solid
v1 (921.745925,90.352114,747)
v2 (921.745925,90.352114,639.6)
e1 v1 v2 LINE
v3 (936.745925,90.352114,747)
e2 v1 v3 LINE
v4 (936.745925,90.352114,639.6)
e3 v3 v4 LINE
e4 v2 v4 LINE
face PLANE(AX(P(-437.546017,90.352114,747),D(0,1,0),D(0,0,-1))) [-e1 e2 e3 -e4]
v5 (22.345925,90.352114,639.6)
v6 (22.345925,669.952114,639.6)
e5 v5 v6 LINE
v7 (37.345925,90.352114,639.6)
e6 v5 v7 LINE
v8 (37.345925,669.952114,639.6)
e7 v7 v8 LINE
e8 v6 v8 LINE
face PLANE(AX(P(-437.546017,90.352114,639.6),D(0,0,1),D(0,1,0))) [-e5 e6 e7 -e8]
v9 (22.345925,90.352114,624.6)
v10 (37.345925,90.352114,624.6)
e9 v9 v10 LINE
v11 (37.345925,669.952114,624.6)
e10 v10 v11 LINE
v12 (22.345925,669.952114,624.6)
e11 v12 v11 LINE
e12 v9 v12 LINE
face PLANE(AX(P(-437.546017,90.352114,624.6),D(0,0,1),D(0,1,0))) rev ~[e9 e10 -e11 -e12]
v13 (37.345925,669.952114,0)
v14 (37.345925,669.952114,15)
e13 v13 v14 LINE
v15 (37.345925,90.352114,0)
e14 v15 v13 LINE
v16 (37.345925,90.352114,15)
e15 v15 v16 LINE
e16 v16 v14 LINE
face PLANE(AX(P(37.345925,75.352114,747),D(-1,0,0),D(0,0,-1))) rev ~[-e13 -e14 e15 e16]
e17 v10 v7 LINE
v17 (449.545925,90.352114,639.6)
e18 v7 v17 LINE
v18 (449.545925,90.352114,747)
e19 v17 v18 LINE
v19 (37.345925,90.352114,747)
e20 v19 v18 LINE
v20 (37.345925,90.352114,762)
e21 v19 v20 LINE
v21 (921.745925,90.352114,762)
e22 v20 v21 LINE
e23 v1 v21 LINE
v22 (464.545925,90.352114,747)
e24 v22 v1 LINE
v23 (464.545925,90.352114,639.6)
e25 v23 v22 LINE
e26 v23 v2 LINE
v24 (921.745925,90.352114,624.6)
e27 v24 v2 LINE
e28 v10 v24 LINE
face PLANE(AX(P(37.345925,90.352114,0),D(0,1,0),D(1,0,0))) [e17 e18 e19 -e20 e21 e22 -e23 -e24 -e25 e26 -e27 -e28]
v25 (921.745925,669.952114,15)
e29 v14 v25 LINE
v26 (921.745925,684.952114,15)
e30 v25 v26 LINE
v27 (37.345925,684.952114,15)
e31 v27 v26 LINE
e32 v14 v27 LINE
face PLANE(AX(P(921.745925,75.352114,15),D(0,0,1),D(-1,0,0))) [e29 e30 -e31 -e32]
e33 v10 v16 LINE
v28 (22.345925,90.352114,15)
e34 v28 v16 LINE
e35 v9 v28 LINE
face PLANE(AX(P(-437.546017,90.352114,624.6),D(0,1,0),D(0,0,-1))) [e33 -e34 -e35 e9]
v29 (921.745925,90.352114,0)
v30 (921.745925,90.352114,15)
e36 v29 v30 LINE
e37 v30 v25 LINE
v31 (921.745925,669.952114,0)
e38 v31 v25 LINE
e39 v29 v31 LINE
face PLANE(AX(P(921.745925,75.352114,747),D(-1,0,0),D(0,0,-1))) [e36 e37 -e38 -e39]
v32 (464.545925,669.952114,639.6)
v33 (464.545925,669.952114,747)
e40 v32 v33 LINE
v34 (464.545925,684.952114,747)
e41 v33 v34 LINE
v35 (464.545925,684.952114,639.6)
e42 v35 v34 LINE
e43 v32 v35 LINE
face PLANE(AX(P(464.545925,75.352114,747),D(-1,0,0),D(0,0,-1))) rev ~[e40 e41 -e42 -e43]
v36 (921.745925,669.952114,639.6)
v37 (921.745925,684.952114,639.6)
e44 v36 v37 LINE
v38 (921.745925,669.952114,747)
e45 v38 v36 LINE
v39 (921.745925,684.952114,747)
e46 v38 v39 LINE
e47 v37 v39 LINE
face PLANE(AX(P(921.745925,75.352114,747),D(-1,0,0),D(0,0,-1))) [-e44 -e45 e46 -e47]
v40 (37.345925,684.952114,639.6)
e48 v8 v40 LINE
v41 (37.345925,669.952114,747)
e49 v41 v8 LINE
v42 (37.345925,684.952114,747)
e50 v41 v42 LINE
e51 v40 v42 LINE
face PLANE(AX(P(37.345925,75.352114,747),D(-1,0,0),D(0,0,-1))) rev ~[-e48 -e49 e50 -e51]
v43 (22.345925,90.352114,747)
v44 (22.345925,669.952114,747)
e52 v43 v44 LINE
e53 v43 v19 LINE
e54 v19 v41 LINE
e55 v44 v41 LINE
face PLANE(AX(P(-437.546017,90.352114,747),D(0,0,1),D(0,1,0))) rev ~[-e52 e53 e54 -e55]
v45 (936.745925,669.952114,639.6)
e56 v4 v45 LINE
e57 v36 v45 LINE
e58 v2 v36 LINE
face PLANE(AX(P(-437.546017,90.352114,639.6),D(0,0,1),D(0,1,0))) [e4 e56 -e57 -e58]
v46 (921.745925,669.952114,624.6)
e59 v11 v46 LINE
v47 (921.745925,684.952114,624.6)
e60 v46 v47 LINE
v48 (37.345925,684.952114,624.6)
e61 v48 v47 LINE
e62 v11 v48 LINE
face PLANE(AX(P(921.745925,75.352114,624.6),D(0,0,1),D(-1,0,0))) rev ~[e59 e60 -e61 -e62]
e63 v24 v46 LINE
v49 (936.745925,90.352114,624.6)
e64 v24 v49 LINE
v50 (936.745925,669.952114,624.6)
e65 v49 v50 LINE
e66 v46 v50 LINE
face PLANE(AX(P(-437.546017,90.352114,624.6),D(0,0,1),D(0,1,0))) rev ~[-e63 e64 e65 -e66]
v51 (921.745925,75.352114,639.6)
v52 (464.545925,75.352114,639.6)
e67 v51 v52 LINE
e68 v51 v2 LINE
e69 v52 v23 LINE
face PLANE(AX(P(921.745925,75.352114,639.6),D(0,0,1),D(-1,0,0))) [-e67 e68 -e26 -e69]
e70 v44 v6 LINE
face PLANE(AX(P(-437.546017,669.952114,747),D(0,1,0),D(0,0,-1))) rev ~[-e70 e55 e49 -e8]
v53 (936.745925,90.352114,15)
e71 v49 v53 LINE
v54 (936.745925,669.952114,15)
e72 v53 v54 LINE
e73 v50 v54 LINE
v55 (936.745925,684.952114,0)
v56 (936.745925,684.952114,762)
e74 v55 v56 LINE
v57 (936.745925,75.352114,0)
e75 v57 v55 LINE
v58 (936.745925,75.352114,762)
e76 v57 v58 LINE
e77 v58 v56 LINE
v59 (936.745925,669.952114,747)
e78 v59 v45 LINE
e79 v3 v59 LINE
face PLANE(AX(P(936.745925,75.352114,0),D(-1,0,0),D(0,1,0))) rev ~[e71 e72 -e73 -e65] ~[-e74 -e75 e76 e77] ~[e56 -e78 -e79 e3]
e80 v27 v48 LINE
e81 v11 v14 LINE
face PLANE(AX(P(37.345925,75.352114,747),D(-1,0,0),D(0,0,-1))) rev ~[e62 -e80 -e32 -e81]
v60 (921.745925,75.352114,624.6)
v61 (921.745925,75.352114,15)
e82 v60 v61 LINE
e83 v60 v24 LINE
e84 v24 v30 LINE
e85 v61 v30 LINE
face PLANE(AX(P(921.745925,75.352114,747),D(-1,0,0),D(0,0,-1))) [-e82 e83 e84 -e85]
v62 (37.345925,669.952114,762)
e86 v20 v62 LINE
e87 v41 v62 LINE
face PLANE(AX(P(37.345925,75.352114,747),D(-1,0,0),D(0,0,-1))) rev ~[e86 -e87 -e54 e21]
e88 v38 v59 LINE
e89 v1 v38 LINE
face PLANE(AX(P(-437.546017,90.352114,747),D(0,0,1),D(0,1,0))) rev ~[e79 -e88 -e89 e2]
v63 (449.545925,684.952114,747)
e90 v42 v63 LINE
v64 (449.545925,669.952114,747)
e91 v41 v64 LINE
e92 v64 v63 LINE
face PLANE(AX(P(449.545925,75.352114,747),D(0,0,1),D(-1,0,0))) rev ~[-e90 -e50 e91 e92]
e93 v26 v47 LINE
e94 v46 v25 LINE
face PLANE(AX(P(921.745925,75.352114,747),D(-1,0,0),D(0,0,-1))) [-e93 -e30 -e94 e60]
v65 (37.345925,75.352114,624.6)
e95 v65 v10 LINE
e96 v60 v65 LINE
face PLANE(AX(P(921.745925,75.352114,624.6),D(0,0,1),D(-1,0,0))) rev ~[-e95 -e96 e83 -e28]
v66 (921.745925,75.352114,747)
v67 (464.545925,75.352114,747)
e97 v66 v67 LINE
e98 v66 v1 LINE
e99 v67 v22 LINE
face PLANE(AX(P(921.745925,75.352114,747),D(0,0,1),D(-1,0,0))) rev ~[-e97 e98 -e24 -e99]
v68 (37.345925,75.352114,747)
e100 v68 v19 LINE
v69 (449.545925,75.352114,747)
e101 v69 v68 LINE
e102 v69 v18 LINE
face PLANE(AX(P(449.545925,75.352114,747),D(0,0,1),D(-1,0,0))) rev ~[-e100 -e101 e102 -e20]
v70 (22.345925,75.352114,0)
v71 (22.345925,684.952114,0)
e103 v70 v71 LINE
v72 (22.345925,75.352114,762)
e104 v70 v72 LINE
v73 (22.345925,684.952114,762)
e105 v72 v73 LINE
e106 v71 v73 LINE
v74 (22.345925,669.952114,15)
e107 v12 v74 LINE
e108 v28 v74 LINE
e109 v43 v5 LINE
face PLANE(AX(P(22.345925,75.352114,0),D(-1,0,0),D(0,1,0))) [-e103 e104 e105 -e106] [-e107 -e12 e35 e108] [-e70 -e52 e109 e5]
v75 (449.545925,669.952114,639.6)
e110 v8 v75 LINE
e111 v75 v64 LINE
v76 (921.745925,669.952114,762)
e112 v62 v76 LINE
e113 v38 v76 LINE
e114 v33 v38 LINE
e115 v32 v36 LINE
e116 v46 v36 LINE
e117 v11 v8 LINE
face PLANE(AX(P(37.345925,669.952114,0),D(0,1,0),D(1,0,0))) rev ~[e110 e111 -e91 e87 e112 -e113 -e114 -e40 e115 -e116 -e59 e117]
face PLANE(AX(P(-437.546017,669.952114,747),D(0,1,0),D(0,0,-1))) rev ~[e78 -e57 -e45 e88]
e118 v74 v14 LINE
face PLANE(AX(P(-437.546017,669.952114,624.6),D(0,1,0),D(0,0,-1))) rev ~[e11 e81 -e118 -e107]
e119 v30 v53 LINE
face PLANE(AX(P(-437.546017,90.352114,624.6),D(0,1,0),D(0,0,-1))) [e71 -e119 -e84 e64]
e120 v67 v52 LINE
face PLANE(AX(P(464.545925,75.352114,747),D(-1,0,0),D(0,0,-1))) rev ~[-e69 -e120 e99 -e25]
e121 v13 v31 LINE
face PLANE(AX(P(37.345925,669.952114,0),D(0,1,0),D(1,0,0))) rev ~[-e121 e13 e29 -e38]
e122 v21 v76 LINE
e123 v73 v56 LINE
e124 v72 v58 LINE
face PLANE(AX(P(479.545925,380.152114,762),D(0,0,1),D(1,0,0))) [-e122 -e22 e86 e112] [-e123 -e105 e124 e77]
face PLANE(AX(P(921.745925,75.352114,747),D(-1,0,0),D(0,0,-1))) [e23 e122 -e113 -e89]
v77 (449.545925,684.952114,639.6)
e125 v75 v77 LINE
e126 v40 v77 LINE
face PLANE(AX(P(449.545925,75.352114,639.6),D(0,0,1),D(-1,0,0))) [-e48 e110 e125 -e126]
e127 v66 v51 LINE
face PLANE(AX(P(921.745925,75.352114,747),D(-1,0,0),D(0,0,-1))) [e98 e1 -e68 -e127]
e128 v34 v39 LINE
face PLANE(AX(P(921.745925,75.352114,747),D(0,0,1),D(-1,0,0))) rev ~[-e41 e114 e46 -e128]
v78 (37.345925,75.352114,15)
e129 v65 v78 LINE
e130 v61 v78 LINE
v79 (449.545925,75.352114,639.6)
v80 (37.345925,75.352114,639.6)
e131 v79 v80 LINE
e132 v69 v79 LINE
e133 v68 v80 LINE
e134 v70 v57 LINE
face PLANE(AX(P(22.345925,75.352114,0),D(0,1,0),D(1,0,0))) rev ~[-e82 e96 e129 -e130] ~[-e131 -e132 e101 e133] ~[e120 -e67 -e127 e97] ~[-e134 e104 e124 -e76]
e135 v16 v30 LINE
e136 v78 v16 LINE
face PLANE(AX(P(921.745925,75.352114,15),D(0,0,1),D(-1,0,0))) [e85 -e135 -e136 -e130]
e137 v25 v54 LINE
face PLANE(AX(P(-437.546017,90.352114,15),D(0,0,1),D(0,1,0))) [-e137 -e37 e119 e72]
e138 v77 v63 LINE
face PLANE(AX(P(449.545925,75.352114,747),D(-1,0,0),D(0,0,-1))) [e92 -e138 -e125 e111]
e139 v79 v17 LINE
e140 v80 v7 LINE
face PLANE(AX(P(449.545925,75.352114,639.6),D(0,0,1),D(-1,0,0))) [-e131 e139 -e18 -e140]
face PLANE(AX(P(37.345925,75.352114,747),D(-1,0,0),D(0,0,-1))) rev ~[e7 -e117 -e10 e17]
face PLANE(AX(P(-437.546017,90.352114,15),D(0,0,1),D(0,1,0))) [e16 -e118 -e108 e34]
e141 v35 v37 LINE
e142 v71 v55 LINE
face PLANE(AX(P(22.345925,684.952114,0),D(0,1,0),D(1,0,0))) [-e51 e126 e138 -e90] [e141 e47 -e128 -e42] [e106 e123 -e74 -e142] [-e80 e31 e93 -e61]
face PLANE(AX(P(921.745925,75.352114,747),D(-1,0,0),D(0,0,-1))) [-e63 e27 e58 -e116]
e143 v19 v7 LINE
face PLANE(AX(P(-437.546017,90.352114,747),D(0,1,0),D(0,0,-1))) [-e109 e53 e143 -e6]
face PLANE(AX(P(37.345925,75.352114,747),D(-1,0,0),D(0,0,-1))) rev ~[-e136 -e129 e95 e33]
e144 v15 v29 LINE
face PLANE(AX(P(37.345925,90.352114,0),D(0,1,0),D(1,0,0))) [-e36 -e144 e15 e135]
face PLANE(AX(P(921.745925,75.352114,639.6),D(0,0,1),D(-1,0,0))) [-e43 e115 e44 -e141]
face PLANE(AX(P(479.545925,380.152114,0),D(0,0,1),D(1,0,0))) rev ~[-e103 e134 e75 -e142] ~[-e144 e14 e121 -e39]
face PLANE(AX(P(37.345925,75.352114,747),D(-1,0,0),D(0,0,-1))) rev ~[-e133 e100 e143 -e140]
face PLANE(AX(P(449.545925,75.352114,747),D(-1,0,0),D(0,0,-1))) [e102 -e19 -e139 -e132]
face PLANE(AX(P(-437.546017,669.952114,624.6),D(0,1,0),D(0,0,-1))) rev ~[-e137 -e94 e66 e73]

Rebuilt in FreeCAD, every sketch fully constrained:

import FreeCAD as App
import Part
import Sketcher
from FreeCAD import Vector
Q = App.Units.Quantity

doc = App.newDocument("Part")
body = doc.addObject("PartDesign::Body", "Body")

sketch1 = doc.addObject("Sketcher::SketchObject", "Sketch")
body.addObject(sketch1)
sketch1.AttachmentSupport = (doc.XY_Plane, [""])
sketch1.MapMode = "FlatFace"
sketch1.addGeometry(Part.LineSegment(Vector(22, 685, 0), Vector(22, 75, 0)), False)
sketch1.addGeometry(Part.LineSegment(Vector(22, 75, 0), Vector(937, 75, 0)), False)
sketch1.addGeometry(Part.LineSegment(Vector(937, 75, 0), Vector(937, 685, 0)), False)
sketch1.addGeometry(Part.LineSegment(Vector(937, 685, 0), Vector(22, 685, 0)), False)
sketch1.addGeometry(Part.LineSegment(Vector(922, 90, 0), Vector(37, 90, 0)), False)
sketch1.addGeometry(Part.LineSegment(Vector(37, 90, 0), Vector(37, 670, 0)), False)
sketch1.addGeometry(Part.LineSegment(Vector(37, 670, 0), Vector(922, 670, 0)), False)
sketch1.addGeometry(Part.LineSegment(Vector(922, 670, 0), Vector(922, 90, 0)), False)
sketch1.addConstraint(Sketcher.Constraint("Coincident", 0, 2, 1, 1))
sketch1.addConstraint(Sketcher.Constraint("Coincident", 1, 2, 2, 1))
sketch1.addConstraint(Sketcher.Constraint("Coincident", 2, 2, 3, 1))
sketch1.addConstraint(Sketcher.Constraint("Coincident", 3, 2, 0, 1))
sketch1.addConstraint(Sketcher.Constraint("Coincident", 4, 2, 5, 1))
sketch1.addConstraint(Sketcher.Constraint("Coincident", 5, 2, 6, 1))
sketch1.addConstraint(Sketcher.Constraint("Coincident", 6, 2, 7, 1))
sketch1.addConstraint(Sketcher.Constraint("Coincident", 7, 2, 4, 1))
sketch1.addConstraint(Sketcher.Constraint("Vertical", 0))
sketch1.addConstraint(Sketcher.Constraint("Horizontal", 1))
sketch1.addConstraint(Sketcher.Constraint("Vertical", 2))
sketch1.addConstraint(Sketcher.Constraint("Horizontal", 3))
sketch1.addConstraint(Sketcher.Constraint("Horizontal", 4))
sketch1.addConstraint(Sketcher.Constraint("Vertical", 5))
sketch1.addConstraint(Sketcher.Constraint("Horizontal", 6))
sketch1.addConstraint(Sketcher.Constraint("Vertical", 7))
sketch1.addConstraint(Sketcher.Constraint("DistanceX", 1, 1, 1, 2, Q("914.4 mm")))
sketch1.addConstraint(Sketcher.Constraint("DistanceX", 4, 2, 4, 1, Q("884.4 mm")))
sketch1.addConstraint(Sketcher.Constraint("DistanceY", 0, 2, 0, 1, Q("609.6 mm")))
sketch1.addConstraint(Sketcher.Constraint("DistanceY", 5, 1, 5, 2, Q("579.6 mm")))
sketch1.addConstraint(Sketcher.Constraint("DistanceX", 0, 2, 4, 2, Q("15 mm")))
sketch1.addConstraint(Sketcher.Constraint("DistanceY", 0, 2, 4, 2, Q("15 mm")))
sketch1.addConstraint(Sketcher.Constraint("DistanceX", -1, 1, 0, 2, Q("22.345925 mm")))
sketch1.addConstraint(Sketcher.Constraint("DistanceY", -1, 1, 0, 2, Q("75.352114 mm")))
pad1 = doc.addObject("PartDesign::Pad", "Pad")
body.addObject(pad1)
pad1.Profile = sketch1
pad1.Length = 762

sketch2 = doc.addObject("Sketcher::SketchObject", "Sketch001")
body.addObject(sketch2)
sketch2.AttachmentSupport = (doc.XZ_Plane, [""])
sketch2.MapMode = "FlatFace"
sketch2.AttachmentOffset = App.Placement(Vector(0, 0, -75.352114), App.Rotation())
sketch2.addGeometry(Part.LineSegment(Vector(922, 15, 0), Vector(922, 625, 0)), False)
sketch2.addGeometry(Part.LineSegment(Vector(922, 625, 0), Vector(37, 625, 0)), False)
sketch2.addGeometry(Part.LineSegment(Vector(37, 625, 0), Vector(37, 15, 0)), False)
sketch2.addGeometry(Part.LineSegment(Vector(37, 15, 0), Vector(922, 15, 0)), False)
sketch2.addGeometry(Part.LineSegment(Vector(450, 640, 0), Vector(450, 747, 0)), False)
sketch2.addGeometry(Part.LineSegment(Vector(450, 747, 0), Vector(37, 747, 0)), False)
sketch2.addGeometry(Part.LineSegment(Vector(37, 747, 0), Vector(37, 640, 0)), False)
sketch2.addGeometry(Part.LineSegment(Vector(37, 640, 0), Vector(450, 640, 0)), False)
sketch2.addGeometry(Part.LineSegment(Vector(922, 640, 0), Vector(922, 747, 0)), False)
sketch2.addGeometry(Part.LineSegment(Vector(922, 747, 0), Vector(465, 747, 0)), False)
sketch2.addGeometry(Part.LineSegment(Vector(465, 747, 0), Vector(465, 640, 0)), False)
sketch2.addGeometry(Part.LineSegment(Vector(465, 640, 0), Vector(922, 640, 0)), False)
sketch2.addConstraint(Sketcher.Constraint("Coincident", 0, 2, 1, 1))
sketch2.addConstraint(Sketcher.Constraint("Coincident", 1, 2, 2, 1))
sketch2.addConstraint(Sketcher.Constraint("Coincident", 2, 2, 3, 1))
sketch2.addConstraint(Sketcher.Constraint("Coincident", 3, 2, 0, 1))
sketch2.addConstraint(Sketcher.Constraint("Coincident", 4, 2, 5, 1))
sketch2.addConstraint(Sketcher.Constraint("Coincident", 5, 2, 6, 1))
sketch2.addConstraint(Sketcher.Constraint("Coincident", 6, 2, 7, 1))
sketch2.addConstraint(Sketcher.Constraint("Coincident", 7, 2, 4, 1))
sketch2.addConstraint(Sketcher.Constraint("Coincident", 8, 2, 9, 1))
sketch2.addConstraint(Sketcher.Constraint("Coincident", 9, 2, 10, 1))
sketch2.addConstraint(Sketcher.Constraint("Coincident", 10, 2, 11, 1))
sketch2.addConstraint(Sketcher.Constraint("Coincident", 11, 2, 8, 1))
sketch2.addConstraint(Sketcher.Constraint("Vertical", 0))
sketch2.addConstraint(Sketcher.Constraint("Horizontal", 1))
sketch2.addConstraint(Sketcher.Constraint("Vertical", 2))
sketch2.addConstraint(Sketcher.Constraint("Horizontal", 3))
sketch2.addConstraint(Sketcher.Constraint("Vertical", 4))
sketch2.addConstraint(Sketcher.Constraint("Horizontal", 5))
sketch2.addConstraint(Sketcher.Constraint("Vertical", 6))
sketch2.addConstraint(Sketcher.Constraint("Horizontal", 7))
sketch2.addConstraint(Sketcher.Constraint("Vertical", 8))
sketch2.addConstraint(Sketcher.Constraint("Horizontal", 9))
sketch2.addConstraint(Sketcher.Constraint("Vertical", 10))
sketch2.addConstraint(Sketcher.Constraint("Horizontal", 11))
sketch2.addConstraint(Sketcher.Constraint("Horizontal", 5, 2, 8, 2))
sketch2.addConstraint(Sketcher.Constraint("Horizontal", 7, 2, 10, 2))
sketch2.addConstraint(Sketcher.Constraint("Vertical", 2, 2, 5, 2))
sketch2.addConstraint(Sketcher.Constraint("Vertical", 3, 2, 8, 2))
sketch2.addConstraint(Sketcher.Constraint("DistanceX", 1, 2, 1, 1, Q("884.4 mm")))
sketch2.addConstraint(Sketcher.Constraint("DistanceX", 5, 2, 5, 1, Q("412.2 mm")))
sketch2.addConstraint(Sketcher.Constraint("DistanceX", 9, 2, 9, 1, Q("457.2 mm")))
sketch2.addConstraint(Sketcher.Constraint("DistanceY", 0, 1, 0, 2, Q("609.6 mm")))
sketch2.addConstraint(Sketcher.Constraint("DistanceY", 4, 1, 4, 2, Q("107.4 mm")))
sketch2.addConstraint(Sketcher.Constraint("DistanceY", -1, 1, 2, 2, Q("15 mm")))
sketch2.addConstraint(Sketcher.Constraint("DistanceY", -1, 1, 4, 2, Q("747 mm")))
sketch2.addConstraint(Sketcher.Constraint("DistanceX", -1, 1, 0, 2, Q("921.745925 mm")))
pocket1 = doc.addObject("PartDesign::Pocket", "Pocket")
body.addObject(pocket1)
pocket1.Profile = sketch2
pocket1.Length = 762

sketch3 = doc.addObject("Sketcher::SketchObject", "Sketch002")
body.addObject(sketch3)
sketch3.AttachmentSupport = (doc.YZ_Plane, [""])
sketch3.MapMode = "FlatFace"
sketch3.AttachmentOffset = App.Placement(Vector(0, 0, 936.745925), App.Rotation())
sketch3.addGeometry(Part.LineSegment(Vector(670, 747, 0), Vector(90, 747, 0)), False)
sketch3.addGeometry(Part.LineSegment(Vector(90, 747, 0), Vector(90, 640, 0)), False)
sketch3.addGeometry(Part.LineSegment(Vector(90, 640, 0), Vector(670, 640, 0)), False)
sketch3.addGeometry(Part.LineSegment(Vector(670, 640, 0), Vector(670, 747, 0)), False)
sketch3.addGeometry(Part.LineSegment(Vector(670, 625, 0), Vector(90, 625, 0)), False)
sketch3.addGeometry(Part.LineSegment(Vector(90, 625, 0), Vector(90, 15, 0)), False)
sketch3.addGeometry(Part.LineSegment(Vector(90, 15, 0), Vector(670, 15, 0)), False)
sketch3.addGeometry(Part.LineSegment(Vector(670, 15, 0), Vector(670, 625, 0)), False)
sketch3.addConstraint(Sketcher.Constraint("Coincident", 0, 2, 1, 1))
sketch3.addConstraint(Sketcher.Constraint("Coincident", 1, 2, 2, 1))
sketch3.addConstraint(Sketcher.Constraint("Coincident", 2, 2, 3, 1))
sketch3.addConstraint(Sketcher.Constraint("Coincident", 3, 2, 0, 1))
sketch3.addConstraint(Sketcher.Constraint("Coincident", 4, 2, 5, 1))
sketch3.addConstraint(Sketcher.Constraint("Coincident", 5, 2, 6, 1))
sketch3.addConstraint(Sketcher.Constraint("Coincident", 6, 2, 7, 1))
sketch3.addConstraint(Sketcher.Constraint("Coincident", 7, 2, 4, 1))
sketch3.addConstraint(Sketcher.Constraint("Horizontal", 0))
sketch3.addConstraint(Sketcher.Constraint("Vertical", 1))
sketch3.addConstraint(Sketcher.Constraint("Horizontal", 2))
sketch3.addConstraint(Sketcher.Constraint("Vertical", 3))
sketch3.addConstraint(Sketcher.Constraint("Horizontal", 4))
sketch3.addConstraint(Sketcher.Constraint("Vertical", 5))
sketch3.addConstraint(Sketcher.Constraint("Horizontal", 6))
sketch3.addConstraint(Sketcher.Constraint("Vertical", 7))
sketch3.addConstraint(Sketcher.Constraint("Vertical", 1, 2, 4, 2))
sketch3.addConstraint(Sketcher.Constraint("Vertical", 3, 2, 6, 2))
sketch3.addConstraint(Sketcher.Constraint("DistanceX", 0, 2, 0, 1, Q("579.6 mm")))
sketch3.addConstraint(Sketcher.Constraint("DistanceY", 1, 2, 1, 1, Q("107.4 mm")))
sketch3.addConstraint(Sketcher.Constraint("DistanceY", 5, 2, 5, 1, Q("609.6 mm")))
sketch3.addConstraint(Sketcher.Constraint("DistanceY", -1, 1, 0, 2, Q("747 mm")))
sketch3.addConstraint(Sketcher.Constraint("DistanceY", -1, 1, 5, 2, Q("15 mm")))
sketch3.addConstraint(Sketcher.Constraint("DistanceX", -1, 1, 0, 2, Q("90.352114 mm")))
pocket2 = doc.addObject("PartDesign::Pocket", "Pocket001")
body.addObject(pocket2)
pocket2.Profile = sketch3
pocket2.Type = "ThroughAll"
pocket2.Midplane = True

doc.recompute()
